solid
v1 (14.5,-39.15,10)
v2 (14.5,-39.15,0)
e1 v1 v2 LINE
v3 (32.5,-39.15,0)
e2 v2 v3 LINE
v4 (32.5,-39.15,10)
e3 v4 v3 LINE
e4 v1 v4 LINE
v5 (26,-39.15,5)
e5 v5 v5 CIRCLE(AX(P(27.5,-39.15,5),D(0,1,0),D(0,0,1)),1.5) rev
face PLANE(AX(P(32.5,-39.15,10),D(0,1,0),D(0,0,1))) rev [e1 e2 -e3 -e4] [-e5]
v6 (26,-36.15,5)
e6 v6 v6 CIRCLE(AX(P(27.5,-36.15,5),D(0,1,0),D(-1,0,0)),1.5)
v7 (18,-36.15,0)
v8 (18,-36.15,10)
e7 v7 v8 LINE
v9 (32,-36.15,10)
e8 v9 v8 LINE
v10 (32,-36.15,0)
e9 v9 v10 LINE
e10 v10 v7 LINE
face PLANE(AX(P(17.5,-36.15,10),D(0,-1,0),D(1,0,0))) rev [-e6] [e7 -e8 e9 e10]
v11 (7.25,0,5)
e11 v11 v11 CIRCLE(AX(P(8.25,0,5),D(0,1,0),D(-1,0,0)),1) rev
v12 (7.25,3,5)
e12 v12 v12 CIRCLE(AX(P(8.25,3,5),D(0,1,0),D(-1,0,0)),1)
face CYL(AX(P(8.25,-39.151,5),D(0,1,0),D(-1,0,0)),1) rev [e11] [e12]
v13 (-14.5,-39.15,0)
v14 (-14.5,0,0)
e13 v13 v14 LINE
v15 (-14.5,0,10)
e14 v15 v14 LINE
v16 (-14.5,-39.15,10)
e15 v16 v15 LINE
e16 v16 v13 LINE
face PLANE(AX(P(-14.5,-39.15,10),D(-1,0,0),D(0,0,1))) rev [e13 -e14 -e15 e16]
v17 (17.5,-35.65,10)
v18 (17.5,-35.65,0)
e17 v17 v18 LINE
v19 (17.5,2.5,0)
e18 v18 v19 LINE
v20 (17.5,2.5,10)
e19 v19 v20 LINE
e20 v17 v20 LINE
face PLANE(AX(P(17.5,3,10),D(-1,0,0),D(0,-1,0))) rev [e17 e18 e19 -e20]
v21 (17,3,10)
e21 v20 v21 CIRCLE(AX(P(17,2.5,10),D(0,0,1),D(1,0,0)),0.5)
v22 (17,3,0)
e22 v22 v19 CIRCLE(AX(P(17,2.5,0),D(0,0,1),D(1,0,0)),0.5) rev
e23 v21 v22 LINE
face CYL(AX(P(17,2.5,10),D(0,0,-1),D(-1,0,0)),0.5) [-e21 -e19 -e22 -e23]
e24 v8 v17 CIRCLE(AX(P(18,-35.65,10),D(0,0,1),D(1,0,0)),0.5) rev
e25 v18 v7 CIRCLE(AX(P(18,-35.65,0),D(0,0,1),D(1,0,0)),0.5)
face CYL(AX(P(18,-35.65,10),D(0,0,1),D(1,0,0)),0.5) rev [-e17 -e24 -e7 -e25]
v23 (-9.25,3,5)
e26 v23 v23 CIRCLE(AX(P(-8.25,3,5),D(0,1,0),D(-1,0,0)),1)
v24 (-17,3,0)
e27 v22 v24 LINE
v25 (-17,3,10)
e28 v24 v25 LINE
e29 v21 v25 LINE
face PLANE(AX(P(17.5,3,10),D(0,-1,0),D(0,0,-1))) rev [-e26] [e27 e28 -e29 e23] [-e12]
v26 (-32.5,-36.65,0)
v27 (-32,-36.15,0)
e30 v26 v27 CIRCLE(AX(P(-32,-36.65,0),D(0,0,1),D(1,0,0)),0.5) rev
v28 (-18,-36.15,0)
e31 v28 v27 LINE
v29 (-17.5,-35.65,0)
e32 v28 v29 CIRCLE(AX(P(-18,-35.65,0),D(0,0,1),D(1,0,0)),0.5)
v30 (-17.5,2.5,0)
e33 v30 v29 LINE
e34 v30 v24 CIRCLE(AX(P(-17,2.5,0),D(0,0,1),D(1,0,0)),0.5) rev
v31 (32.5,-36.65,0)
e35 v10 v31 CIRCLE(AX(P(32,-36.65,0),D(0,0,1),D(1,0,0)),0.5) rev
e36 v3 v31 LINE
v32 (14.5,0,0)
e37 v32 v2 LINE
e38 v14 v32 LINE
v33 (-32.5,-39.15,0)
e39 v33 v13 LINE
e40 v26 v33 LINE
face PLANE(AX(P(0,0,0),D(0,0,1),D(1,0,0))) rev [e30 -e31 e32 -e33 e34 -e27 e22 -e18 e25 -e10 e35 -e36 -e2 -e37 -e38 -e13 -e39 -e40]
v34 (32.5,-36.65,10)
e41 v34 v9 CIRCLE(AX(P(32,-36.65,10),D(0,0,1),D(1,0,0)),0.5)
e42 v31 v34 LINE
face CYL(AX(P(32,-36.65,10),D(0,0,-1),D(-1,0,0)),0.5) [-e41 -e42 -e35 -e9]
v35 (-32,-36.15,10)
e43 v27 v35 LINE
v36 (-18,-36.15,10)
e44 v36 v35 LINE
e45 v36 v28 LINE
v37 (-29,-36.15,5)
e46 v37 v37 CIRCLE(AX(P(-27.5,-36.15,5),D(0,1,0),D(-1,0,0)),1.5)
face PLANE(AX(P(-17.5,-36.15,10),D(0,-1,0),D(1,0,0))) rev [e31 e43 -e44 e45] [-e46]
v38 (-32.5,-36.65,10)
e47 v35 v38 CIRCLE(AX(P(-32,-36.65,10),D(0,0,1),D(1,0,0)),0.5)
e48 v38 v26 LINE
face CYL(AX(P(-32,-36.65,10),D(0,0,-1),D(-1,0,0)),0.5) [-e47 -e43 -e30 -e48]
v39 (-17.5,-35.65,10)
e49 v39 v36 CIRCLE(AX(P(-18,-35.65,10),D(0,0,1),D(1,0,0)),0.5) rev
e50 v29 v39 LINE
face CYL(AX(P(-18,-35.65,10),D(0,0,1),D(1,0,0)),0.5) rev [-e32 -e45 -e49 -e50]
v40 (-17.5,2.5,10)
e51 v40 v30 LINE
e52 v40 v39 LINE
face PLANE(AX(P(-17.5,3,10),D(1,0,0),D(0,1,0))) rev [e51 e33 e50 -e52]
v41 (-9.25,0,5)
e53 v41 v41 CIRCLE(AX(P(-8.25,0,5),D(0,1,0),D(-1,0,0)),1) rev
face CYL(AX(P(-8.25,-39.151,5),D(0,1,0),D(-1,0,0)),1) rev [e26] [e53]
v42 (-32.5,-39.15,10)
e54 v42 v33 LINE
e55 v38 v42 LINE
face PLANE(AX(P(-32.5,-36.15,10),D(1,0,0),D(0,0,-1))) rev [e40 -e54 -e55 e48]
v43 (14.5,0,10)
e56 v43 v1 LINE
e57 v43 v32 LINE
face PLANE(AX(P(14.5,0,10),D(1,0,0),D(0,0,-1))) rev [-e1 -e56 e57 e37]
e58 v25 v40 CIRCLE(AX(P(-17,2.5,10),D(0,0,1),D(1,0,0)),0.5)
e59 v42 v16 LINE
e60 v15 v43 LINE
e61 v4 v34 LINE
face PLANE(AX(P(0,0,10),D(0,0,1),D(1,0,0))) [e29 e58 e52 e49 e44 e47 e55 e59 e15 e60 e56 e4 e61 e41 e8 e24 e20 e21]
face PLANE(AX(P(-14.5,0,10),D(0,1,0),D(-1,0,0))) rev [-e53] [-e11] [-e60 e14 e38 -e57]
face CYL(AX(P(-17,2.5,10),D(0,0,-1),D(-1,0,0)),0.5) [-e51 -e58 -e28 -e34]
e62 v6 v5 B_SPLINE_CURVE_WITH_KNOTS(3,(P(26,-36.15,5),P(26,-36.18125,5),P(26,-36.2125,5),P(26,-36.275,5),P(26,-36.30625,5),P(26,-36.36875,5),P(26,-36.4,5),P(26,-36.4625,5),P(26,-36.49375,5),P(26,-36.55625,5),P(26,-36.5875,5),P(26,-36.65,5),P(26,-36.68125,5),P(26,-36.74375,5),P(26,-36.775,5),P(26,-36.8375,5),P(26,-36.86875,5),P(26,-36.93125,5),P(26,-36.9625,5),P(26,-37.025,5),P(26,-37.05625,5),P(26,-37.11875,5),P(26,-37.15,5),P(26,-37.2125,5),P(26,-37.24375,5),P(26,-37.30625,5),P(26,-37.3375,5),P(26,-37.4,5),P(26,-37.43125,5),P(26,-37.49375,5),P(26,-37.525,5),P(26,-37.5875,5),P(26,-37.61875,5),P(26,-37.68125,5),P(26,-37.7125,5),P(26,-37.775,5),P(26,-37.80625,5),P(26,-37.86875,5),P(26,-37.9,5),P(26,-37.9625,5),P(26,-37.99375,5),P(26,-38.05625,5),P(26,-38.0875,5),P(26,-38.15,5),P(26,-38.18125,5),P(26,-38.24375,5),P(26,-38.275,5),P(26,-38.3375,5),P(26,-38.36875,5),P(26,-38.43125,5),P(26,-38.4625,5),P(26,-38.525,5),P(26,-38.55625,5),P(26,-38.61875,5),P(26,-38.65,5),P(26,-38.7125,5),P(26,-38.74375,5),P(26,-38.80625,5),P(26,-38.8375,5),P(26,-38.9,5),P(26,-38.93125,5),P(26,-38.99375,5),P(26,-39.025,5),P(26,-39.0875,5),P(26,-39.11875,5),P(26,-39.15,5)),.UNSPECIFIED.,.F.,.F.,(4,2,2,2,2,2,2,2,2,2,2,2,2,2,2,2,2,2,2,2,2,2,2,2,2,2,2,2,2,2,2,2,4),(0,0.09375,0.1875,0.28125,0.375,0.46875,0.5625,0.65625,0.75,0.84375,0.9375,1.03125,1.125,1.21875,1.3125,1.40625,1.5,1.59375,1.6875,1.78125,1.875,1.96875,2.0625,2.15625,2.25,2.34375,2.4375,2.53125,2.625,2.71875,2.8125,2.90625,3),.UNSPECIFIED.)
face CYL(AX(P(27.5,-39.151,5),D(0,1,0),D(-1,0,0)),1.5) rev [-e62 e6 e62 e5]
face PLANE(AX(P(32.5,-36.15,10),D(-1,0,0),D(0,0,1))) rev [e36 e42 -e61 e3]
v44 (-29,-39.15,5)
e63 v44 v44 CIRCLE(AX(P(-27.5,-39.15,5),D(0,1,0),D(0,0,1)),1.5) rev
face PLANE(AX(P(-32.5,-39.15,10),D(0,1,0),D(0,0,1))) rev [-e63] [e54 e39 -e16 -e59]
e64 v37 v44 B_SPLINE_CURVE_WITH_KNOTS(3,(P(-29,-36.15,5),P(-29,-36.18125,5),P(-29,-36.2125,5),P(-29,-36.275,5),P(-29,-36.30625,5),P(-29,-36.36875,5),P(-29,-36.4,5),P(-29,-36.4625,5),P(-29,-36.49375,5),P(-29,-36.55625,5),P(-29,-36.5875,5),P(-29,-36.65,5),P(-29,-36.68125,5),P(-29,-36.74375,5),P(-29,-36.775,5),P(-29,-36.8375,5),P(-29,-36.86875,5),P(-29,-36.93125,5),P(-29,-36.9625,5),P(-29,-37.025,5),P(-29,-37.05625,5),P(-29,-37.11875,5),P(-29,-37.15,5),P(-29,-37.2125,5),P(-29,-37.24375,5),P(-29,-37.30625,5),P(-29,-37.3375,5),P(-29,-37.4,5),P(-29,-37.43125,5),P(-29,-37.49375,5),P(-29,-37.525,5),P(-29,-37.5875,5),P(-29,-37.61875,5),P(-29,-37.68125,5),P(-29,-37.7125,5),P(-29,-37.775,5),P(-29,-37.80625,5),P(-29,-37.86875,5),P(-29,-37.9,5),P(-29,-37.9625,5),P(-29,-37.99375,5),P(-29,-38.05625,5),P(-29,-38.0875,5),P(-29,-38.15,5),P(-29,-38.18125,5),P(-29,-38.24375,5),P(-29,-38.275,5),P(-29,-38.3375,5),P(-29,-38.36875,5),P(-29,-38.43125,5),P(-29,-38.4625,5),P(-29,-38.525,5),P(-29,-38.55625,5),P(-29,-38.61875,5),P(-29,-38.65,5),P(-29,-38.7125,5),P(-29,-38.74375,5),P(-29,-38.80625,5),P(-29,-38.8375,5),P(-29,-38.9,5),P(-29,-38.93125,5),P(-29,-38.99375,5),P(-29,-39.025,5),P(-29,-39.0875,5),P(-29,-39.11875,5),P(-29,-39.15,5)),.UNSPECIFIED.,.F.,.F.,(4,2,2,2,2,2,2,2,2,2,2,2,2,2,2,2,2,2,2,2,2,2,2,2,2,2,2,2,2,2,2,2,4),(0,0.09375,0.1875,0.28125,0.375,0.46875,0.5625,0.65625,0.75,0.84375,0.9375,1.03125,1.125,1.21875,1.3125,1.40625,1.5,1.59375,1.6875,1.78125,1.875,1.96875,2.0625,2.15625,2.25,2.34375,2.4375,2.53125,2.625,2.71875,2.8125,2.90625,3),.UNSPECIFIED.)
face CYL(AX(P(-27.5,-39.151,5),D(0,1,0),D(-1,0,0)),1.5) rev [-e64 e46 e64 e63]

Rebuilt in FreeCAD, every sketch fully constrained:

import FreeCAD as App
import Part
import Sketcher
from FreeCAD import Vector
Q = App.Units.Quantity


def edges_at(feature, points):
    """Names of the edges that pass closest to the given points."""
    edges = feature.Shape.Edges
    near = lambda p: min(range(len(edges)), key=lambda i: edges[i].distToShape(Part.Vertex(*p))[0])
    return sorted({f"Edge{near(p) + 1}" for p in points})


def add_polygon(sketch, points):
    """Adds a closed chain of lines whose ends are joined by coincident constraints."""
    first, n = sketch.GeometryCount, len(points)
    for a, b in zip(points, points[1:] + points[:1]):
        sketch.addGeometry(Part.LineSegment(App.Vector(*a, 0), App.Vector(*b, 0)), False)
    for i in range(n):
        sketch.addConstraint(Sketcher.Constraint("Coincident", first + i, 2, first + (i + 1) % n, 1))

doc = App.newDocument("Part")
body = doc.addObject("PartDesign::Body", "Body")

# Sketch on XY plane
sketch1 = body.newObject("Sketcher::SketchObject", "Sketch")
sketch1.AttachmentSupport = (doc.getObject("XY_Plane"), [""])
sketch1.MapMode = "FlatFace"
add_polygon(sketch1, [(-32.5, -39.1), (-14.5, -39.1), (-14.5, 0), (14.5, 0), (14.5, -39.1), (32.5, -39.1), (32.5, -36.1), (17.5, -36.1), (17.5, 3), (-17.5, 3), (-17.5, -36.1), (-32.5, -36.1)])  # lines 0-11
sketch1.addConstraint(Sketcher.Constraint("Horizontal", 0))
sketch1.addConstraint(Sketcher.Constraint("Vertical", 1))
sketch1.addConstraint(Sketcher.Constraint("Horizontal", 2))
sketch1.addConstraint(Sketcher.Constraint("Vertical", 3))
sketch1.addConstraint(Sketcher.Constraint("Horizontal", 4))
sketch1.addConstraint(Sketcher.Constraint("Vertical", 5))
sketch1.addConstraint(Sketcher.Constraint("Horizontal", 6))
sketch1.addConstraint(Sketcher.Constraint("Vertical", 7))
sketch1.addConstraint(Sketcher.Constraint("Horizontal", 8))
sketch1.addConstraint(Sketcher.Constraint("Vertical", 9))
sketch1.addConstraint(Sketcher.Constraint("Horizontal", 10))
sketch1.addConstraint(Sketcher.Constraint("Vertical", 11))
sketch1.addConstraint(Sketcher.Constraint("Symmetric", 1, 2, 2, 2, -1, 1))
sketch1.addConstraint(Sketcher.Constraint("Symmetric", 6, 2, 9, 2, -2))
sketch1.addConstraint(Sketcher.Constraint("Symmetric", 4, 2, 11, 2, -2))
sketch1.addConstraint(Sketcher.Constraint("Equal", 3, 7))
sketch1.addConstraint(Sketcher.Constraint("DistanceX", 0, 1, 0, 2, Q("18 mm")))
sketch1.addConstraint(Sketcher.Constraint("DistanceX", 2, 1, 2, 2, Q("29 mm")))
sketch1.addConstraint(Sketcher.Constraint("DistanceX", 6, 2, 6, 1, Q("15 mm")))
sketch1.addConstraint(Sketcher.Constraint("DistanceY", 5, 1, 5, 2, Q("3 mm")))
sketch1.addConstraint(Sketcher.Constraint("DistanceY", 1, 1, 1, 2, Q("39.15 mm")))
pad1 = body.newObject("PartDesign::Pad", "Pad")
pad1.Profile = sketch1
pad1.Length = 10

# Sketch on XZ plane
sketch2 = body.newObject("Sketcher::SketchObject", "Sketch001")
sketch2.AttachmentSupport = (doc.getObject("XZ_Plane"), [""])
sketch2.MapMode = "FlatFace"
sketch2.AttachmentOffset = App.Placement(Vector(0, 0, -3), App.Rotation())
sketch2.addGeometry(Part.Circle(Vector(-8.2, 5, 0), Vector(0, 0, 1), 1), False)
sketch2.addConstraint(Sketcher.Constraint("Diameter", 0, Q("2 mm")))
sketch2.addConstraint(Sketcher.Constraint("DistanceY", -1, 1, 0, 3, Q("5 mm")))
sketch2.addConstraint(Sketcher.Constraint("DistanceX", 0, 3, -1, 1, Q("8.25 mm")))
pocket1 = body.newObject("PartDesign::Pocket", "Pocket")
pocket1.Profile = sketch2
pocket1.Type = "UpToFirst"
pocket1.Reversed = True

# Sketch on XZ plane
sketch3 = body.newObject("Sketcher::SketchObject", "Sketch002")
sketch3.AttachmentSupport = (doc.getObject("XZ_Plane"), [""])
sketch3.MapMode = "FlatFace"
sketch3.AttachmentOffset = App.Placement(Vector(0, 0, -3), App.Rotation())
sketch3.addGeometry(Part.Circle(Vector(8.2, 5, 0), Vector(0, 0, 1), 1), False)
sketch3.addConstraint(Sketcher.Constraint("Diameter", 0, Q("2 mm")))
sketch3.addConstraint(Sketcher.Constraint("DistanceY", -1, 1, 0, 3, Q("5 mm")))
sketch3.addConstraint(Sketcher.Constraint("DistanceX", -1, 1, 0, 3, Q("8.25 mm")))
pocket2 = body.newObject("PartDesign::Pocket", "Pocket001")
pocket2.Profile = sketch3
pocket2.Type = "UpToFirst"
pocket2.Reversed = True

# Sketch on XZ plane
sketch4 = body.newObject("Sketcher::SketchObject", "Sketch003")
sketch4.AttachmentSupport = (doc.getObject("XZ_Plane"), [""])
sketch4.MapMode = "FlatFace"
sketch4.AttachmentOffset = App.Placement(Vector(0, 0, 36.15), App.Rotation())
sketch4.addGeometry(Part.Circle(Vector(27.5, 5, 0), Vector(0, 0, 1), 1.5), False)
sketch4.addConstraint(Sketcher.Constraint("Diameter", 0, Q("3 mm")))
sketch4.addConstraint(Sketcher.Constraint("DistanceY", -1, 1, 0, 3, Q("5 mm")))
sketch4.addConstraint(Sketcher.Constraint("DistanceX", -1, 1, 0, 3, Q("27.5 mm")))
pocket3 = body.newObject("PartDesign::Pocket", "Pocket002")
pocket3.Profile = sketch4
pocket3.Type = "UpToFirst"
pocket3.Reversed = True

# Sketch on XZ plane
sketch5 = body.newObject("Sketcher::SketchObject", "Sketch004")
sketch5.AttachmentSupport = (doc.getObject("XZ_Plane"), [""])
sketch5.MapMode = "FlatFace"
sketch5.AttachmentOffset = App.Placement(Vector(0, 0, 36.15), App.Rotation())
sketch5.addGeometry(Part.Circle(Vector(-27.5, 5, 0), Vector(0, 0, 1), 1.5), False)
sketch5.addConstraint(Sketcher.Constraint("Diameter", 0, Q("3 mm")))
sketch5.addConstraint(Sketcher.Constraint("DistanceY", -1, 1, 0, 3, Q("5 mm")))
sketch5.addConstraint(Sketcher.Constraint("DistanceX", 0, 3, -1, 1, Q("27.5 mm")))
pocket4 = body.newObject("PartDesign::Pocket", "Pocket003")
pocket4.Profile = sketch5
pocket4.Type = "UpToFirst"
pocket4.Reversed = True
doc.recompute()

fillet = body.newObject("PartDesign::Fillet", "Fillet")
fillet.Base = (pocket4, edges_at(pocket4, [
    (-32.5, -36.15, 5),
    (-17.5, -36.15, 5),
    (-17.5, 3, 5),
    (17.5, 3, 5),
    (17.5, -36.15, 5),
    (32.5, -36.15, 5),
]))
fillet.Radius = 0.5

doc.recompute()
